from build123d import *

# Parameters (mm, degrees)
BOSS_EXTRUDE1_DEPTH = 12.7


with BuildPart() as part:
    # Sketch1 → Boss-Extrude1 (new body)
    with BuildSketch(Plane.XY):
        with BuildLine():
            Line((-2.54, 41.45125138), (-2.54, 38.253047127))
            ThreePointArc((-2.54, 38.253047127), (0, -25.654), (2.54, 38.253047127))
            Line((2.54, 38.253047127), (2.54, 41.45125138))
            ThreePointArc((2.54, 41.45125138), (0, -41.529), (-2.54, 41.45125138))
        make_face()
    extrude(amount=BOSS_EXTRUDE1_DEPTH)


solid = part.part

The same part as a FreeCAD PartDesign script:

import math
import FreeCAD as App
import Part
import Sketcher
Q = App.Units.Quantity

doc = App.newDocument("Part")
body = doc.addObject("PartDesign::Body", "Body")

# Sketch on XY plane
sketch1 = body.newObject("Sketcher::SketchObject", "Sketch")
sketch1.AttachmentSupport = (doc.getObject("XY_Plane"), [""])
sketch1.MapMode = "FlatFace"
sketch1.addGeometry(Part.LineSegment(App.Vector(-2.5, 38.3, 0), App.Vector(-2.5, 41.5, 0)), False)
sketch1.addGeometry(Part.ArcOfCircle(Part.Circle(App.Vector(0, 0, 0), App.Vector(0, 0, 1), 41.5), math.radians(94), math.radians(446)), False)
sketch1.addGeometry(Part.LineSegment(App.Vector(2.5, 41.5, 0), App.Vector(2.5, 38.3, 0)), False)
sketch1.addGeometry(Part.ArcOfCircle(Part.Circle(App.Vector(0, 6.3, 0), App.Vector(0, 0, 1), 32), math.radians(95), math.radians(445)), False)
sketch1.addConstraint(Sketcher.Constraint("Coincident", 0, 2, 1, 1))
sketch1.addConstraint(Sketcher.Constraint("Coincident", 1, 2, 2, 1))
sketch1.addConstraint(Sketcher.Constraint("Coincident", 2, 2, 3, 2))
sketch1.addConstraint(Sketcher.Constraint("Coincident", 3, 1, 0, 1))
sketch1.addConstraint(Sketcher.Constraint("Vertical", 0))
sketch1.addConstraint(Sketcher.Constraint("Vertical", 2))
sketch1.addConstraint(Sketcher.Constraint("Coincident", 1, 3, -1, 1))
sketch1.addConstraint(Sketcher.Constraint("Symmetric", 2, 2, 3, 1, -2))
sketch1.addConstraint(Sketcher.Constraint("Radius", 3, Q("1.26 in")))
sketch1.addConstraint(Sketcher.Constraint("Radius", 1, Q("1.635 in")))
sketch1.addConstraint(Sketcher.Constraint("DistanceX", 0, 2, -1, 1, Q("0.1 in")))
sketch1.addConstraint(Sketcher.Constraint("DistanceY", -1, 1, 3, 3, Q("0.25 in")))
pad1 = body.newObject("PartDesign::Pad", "Pad")
pad1.Profile = sketch1
pad1.Length = Q("0.5 in")

doc.recompute()
